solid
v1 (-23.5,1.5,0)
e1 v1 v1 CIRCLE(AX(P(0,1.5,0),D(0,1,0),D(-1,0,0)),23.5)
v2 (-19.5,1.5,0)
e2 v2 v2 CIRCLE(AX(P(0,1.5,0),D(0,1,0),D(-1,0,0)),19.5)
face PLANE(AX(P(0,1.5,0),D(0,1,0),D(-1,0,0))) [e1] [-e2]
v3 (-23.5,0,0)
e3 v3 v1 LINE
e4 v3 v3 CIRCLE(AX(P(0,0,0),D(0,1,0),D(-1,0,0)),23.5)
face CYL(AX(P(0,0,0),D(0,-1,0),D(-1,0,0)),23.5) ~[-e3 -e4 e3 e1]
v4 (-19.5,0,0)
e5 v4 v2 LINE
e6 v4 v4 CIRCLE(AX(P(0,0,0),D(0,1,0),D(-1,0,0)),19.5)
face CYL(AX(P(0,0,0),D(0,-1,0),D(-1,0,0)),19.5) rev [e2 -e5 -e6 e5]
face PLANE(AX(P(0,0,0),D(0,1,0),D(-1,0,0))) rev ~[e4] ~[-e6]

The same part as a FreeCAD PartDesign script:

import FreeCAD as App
import Part
import Sketcher
from FreeCAD import Vector
Q = App.Units.Quantity

doc = App.newDocument("Part")
body = doc.addObject("PartDesign::Body", "Body")

sketch1 = doc.addObject("Sketcher::SketchObject", "Sketch")
body.addObject(sketch1)
sketch1.AttachmentSupport = (doc.XZ_Plane, [""])
sketch1.MapMode = "FlatFace"
sketch1.addGeometry(Part.Circle(Vector(0, 0, 0), Vector(0, 0, 1), 23.5), False)
sketch1.addGeometry(Part.Circle(Vector(0, 0, 0), Vector(0, 0, 1), 19.5), False)
sketch1.addConstraint(Sketcher.Constraint("Coincident", 0, 3, -1, 1))
sketch1.addConstraint(Sketcher.Constraint("Coincident", 1, 3, -1, 1))
sketch1.addConstraint(Sketcher.Constraint("Diameter", 1, Q("39 mm")))
sketch1.addConstraint(Sketcher.Constraint("Diameter", 0, Q("47 mm")))
pad1 = doc.addObject("PartDesign::Pad", "Pad")
body.addObject(pad1)
pad1.Profile = sketch1
pad1.Length = 1.5
pad1.Reversed = True

doc.recompute()
